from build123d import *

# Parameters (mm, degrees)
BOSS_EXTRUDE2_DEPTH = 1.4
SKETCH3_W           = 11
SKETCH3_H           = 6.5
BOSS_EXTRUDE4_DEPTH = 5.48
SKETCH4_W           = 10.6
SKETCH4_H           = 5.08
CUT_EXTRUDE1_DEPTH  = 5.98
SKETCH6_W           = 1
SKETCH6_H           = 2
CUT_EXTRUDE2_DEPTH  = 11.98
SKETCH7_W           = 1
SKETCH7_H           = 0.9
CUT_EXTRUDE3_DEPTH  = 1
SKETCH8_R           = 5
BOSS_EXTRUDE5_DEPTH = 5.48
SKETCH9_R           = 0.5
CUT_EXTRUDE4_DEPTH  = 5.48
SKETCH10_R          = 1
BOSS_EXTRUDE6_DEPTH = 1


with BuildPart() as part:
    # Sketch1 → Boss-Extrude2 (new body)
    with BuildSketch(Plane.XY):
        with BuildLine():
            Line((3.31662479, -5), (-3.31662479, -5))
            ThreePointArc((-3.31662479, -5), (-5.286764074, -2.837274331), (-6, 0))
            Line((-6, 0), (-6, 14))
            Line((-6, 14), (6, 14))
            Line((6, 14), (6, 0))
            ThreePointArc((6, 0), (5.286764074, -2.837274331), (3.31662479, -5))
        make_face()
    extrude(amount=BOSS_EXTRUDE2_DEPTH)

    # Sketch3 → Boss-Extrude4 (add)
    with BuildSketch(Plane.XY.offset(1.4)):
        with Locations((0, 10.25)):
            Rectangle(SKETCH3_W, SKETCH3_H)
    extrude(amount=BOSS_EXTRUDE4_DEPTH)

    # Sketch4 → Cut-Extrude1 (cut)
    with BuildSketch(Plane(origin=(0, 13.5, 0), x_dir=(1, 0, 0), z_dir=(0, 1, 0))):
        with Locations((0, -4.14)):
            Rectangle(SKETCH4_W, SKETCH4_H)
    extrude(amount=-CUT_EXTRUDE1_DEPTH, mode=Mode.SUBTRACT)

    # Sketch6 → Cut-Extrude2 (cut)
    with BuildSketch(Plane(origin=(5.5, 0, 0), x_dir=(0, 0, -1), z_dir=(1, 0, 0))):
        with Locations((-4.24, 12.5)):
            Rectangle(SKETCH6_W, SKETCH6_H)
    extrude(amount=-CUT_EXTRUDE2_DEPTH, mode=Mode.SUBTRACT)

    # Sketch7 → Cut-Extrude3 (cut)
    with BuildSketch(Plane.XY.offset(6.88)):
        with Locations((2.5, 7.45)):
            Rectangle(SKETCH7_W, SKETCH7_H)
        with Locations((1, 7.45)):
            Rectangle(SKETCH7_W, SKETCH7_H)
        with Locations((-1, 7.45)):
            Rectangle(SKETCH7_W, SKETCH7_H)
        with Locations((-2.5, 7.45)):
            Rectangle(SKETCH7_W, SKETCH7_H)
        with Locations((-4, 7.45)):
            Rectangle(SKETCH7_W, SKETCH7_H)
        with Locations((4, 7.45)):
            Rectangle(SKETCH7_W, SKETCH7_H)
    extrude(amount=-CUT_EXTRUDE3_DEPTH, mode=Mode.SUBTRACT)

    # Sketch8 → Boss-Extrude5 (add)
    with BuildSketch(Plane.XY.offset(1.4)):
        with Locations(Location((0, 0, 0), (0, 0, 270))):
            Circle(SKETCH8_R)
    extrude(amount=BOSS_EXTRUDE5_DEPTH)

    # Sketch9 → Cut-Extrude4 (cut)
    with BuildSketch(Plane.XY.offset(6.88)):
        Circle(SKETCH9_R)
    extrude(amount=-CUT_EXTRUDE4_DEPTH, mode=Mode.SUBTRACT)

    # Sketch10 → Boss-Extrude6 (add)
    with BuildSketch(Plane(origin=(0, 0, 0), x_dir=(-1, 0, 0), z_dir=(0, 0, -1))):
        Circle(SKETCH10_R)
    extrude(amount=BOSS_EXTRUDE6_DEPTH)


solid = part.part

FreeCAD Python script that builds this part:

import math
import FreeCAD as App
import Part
import Sketcher

V = App.Vector
Q = App.Units.Quantity

doc = App.newDocument("Part")
body = doc.addObject("PartDesign::Body", "Body")

sketch1 = doc.addObject("Sketcher::SketchObject", "Sketch")
body.addObject(sketch1)
sketch1.AttachmentSupport = (doc.XY_Plane, [""])
sketch1.MapMode = "FlatFace"
sketch1.addGeometry(Part.LineSegment(V(-3.316625, -5, 0), V(3.316625, -5, 0)), False)
sketch1.addGeometry(Part.ArcOfCircle(Part.Circle(V(0, 0, 0), V(0, 0, 1), 6), math.radians(-56.44269), math.radians(0)), False)
sketch1.addGeometry(Part.LineSegment(V(6, 0, 0), V(6, 14, 0)), False)
sketch1.addGeometry(Part.LineSegment(V(6, 14, 0), V(-6, 14, 0)), False)
sketch1.addGeometry(Part.LineSegment(V(-6, 14, 0), V(-6, 0, 0)), False)
sketch1.addGeometry(Part.ArcOfCircle(Part.Circle(V(0, 0, 0), V(0, 0, 1), 6), math.radians(180), math.radians(236.44269)), False)
sketch1.addConstraint(Sketcher.Constraint("Coincident", 0, 2, 1, 1))
sketch1.addConstraint(Sketcher.Constraint("Tangent", 1, 2, 2, 1))
sketch1.addConstraint(Sketcher.Constraint("Coincident", 2, 2, 3, 1))
sketch1.addConstraint(Sketcher.Constraint("Coincident", 3, 2, 4, 1))
sketch1.addConstraint(Sketcher.Constraint("Tangent", 4, 2, 5, 1))
sketch1.addConstraint(Sketcher.Constraint("Coincident", 5, 2, 0, 1))
sketch1.addConstraint(Sketcher.Constraint("Horizontal", 0))
sketch1.addConstraint(Sketcher.Constraint("Vertical", 2))
sketch1.addConstraint(Sketcher.Constraint("Horizontal", 3))
sketch1.addConstraint(Sketcher.Constraint("Vertical", 4))
sketch1.addConstraint(Sketcher.Constraint("Coincident", 1, 3, -1, 1))
sketch1.addConstraint(Sketcher.Constraint("Coincident", 5, 3, -1, 1))
sketch1.addConstraint(Sketcher.Constraint("Equal", 1, 5))
sketch1.addConstraint(Sketcher.Constraint("Radius", 1, Q("6 mm")))
sketch1.addConstraint(Sketcher.Constraint("DistanceY", 2, 1, 2, 2, Q("14 mm")))
sketch1.addConstraint(Sketcher.Constraint("DistanceY", 0, 2, -1, 1, Q("5 mm")))
pad1 = doc.addObject("PartDesign::Pad", "Pad")
body.addObject(pad1)
pad1.Profile = sketch1
pad1.Length = 1.4

sketch2 = doc.addObject("Sketcher::SketchObject", "Sketch001")
body.addObject(sketch2)
sketch2.AttachmentSupport = (doc.XY_Plane, [""])
sketch2.MapMode = "FlatFace"
sketch2.AttachmentOffset = App.Placement(V(0, 0, 1.4), App.Rotation())
sketch2.addGeometry(Part.LineSegment(V(-5.5, 13.5, 0), V(-5.5, 7, 0)), False)
sketch2.addGeometry(Part.LineSegment(V(-5.5, 7, 0), V(5.5, 7, 0)), False)
sketch2.addGeometry(Part.LineSegment(V(5.5, 7, 0), V(5.5, 13.5, 0)), False)
sketch2.addGeometry(Part.LineSegment(V(5.5, 13.5, 0), V(-5.5, 13.5, 0)), False)
sketch2.addConstraint(Sketcher.Constraint("Coincident", 0, 2, 1, 1))
sketch2.addConstraint(Sketcher.Constraint("Coincident", 1, 2, 2, 1))
sketch2.addConstraint(Sketcher.Constraint("Coincident", 2, 2, 3, 1))
sketch2.addConstraint(Sketcher.Constraint("Coincident", 3, 2, 0, 1))
sketch2.addConstraint(Sketcher.Constraint("Vertical", 0))
sketch2.addConstraint(Sketcher.Constraint("Horizontal", 1))
sketch2.addConstraint(Sketcher.Constraint("Vertical", 2))
sketch2.addConstraint(Sketcher.Constraint("Horizontal", 3))
sketch2.addConstraint(Sketcher.Constraint("DistanceX", 1, 1, 1, 2, Q("11 mm")))
sketch2.addConstraint(Sketcher.Constraint("DistanceY", 0, 2, 0, 1, Q("6.5 mm")))
sketch2.addConstraint(Sketcher.Constraint("DistanceY", -1, 1, 0, 2, Q("7 mm")))
sketch2.addConstraint(Sketcher.Constraint("DistanceX", 0, 2, -1, 1, Q("5.5 mm")))
pad2 = doc.addObject("PartDesign::Pad", "Pad001")
body.addObject(pad2)
pad2.Profile = sketch2
pad2.Length = 5.48

sketch3 = doc.addObject("Sketcher::SketchObject", "Sketch002")
body.addObject(sketch3)
sketch3.AttachmentSupport = (doc.XZ_Plane, [""])
sketch3.MapMode = "FlatFace"
sketch3.AttachmentOffset = App.Placement(V(0, 0, -13.5), App.Rotation())
sketch3.addGeometry(Part.LineSegment(V(-5.3, 1.6, 0), V(-5.3, 6.68, 0)), False)
sketch3.addGeometry(Part.LineSegment(V(-5.3, 6.68, 0), V(5.3, 6.68, 0)), False)
sketch3.addGeometry(Part.LineSegment(V(5.3, 6.68, 0), V(5.3, 1.6, 0)), False)
sketch3.addGeometry(Part.LineSegment(V(5.3, 1.6, 0), V(-5.3, 1.6, 0)), False)
sketch3.addConstraint(Sketcher.Constraint("Coincident", 0, 2, 1, 1))
sketch3.addConstraint(Sketcher.Constraint("Coincident", 1, 2, 2, 1))
sketch3.addConstraint(Sketcher.Constraint("Coincident", 2, 2, 3, 1))
sketch3.addConstraint(Sketcher.Constraint("Coincident", 3, 2, 0, 1))
sketch3.addConstraint(Sketcher.Constraint("Vertical", 0))
sketch3.addConstraint(Sketcher.Constraint("Horizontal", 1))
sketch3.addConstraint(Sketcher.Constraint("Vertical", 2))
sketch3.addConstraint(Sketcher.Constraint("Horizontal", 3))
sketch3.addConstraint(Sketcher.Constraint("DistanceX", 1, 1, 1, 2, Q("10.6 mm")))
sketch3.addConstraint(Sketcher.Constraint("DistanceY", 0, 1, 0, 2, Q("5.08 mm")))
sketch3.addConstraint(Sketcher.Constraint("DistanceX", 0, 2, -1, 1, Q("5.3 mm")))
sketch3.addConstraint(Sketcher.Constraint("DistanceY", -1, 1, 2, 2, Q("1.6 mm")))
pocket1 = doc.addObject("PartDesign::Pocket", "Pocket")
body.addObject(pocket1)
pocket1.Profile = sketch3
pocket1.Length = 5.98
pocket1.Reversed = True

sketch4 = doc.addObject("Sketcher::SketchObject", "Sketch003")
body.addObject(sketch4)
sketch4.AttachmentSupport = (doc.YZ_Plane, [""])
sketch4.MapMode = "FlatFace"
sketch4.AttachmentOffset = App.Placement(V(0, 0, 5.5), App.Rotation())
sketch4.addGeometry(Part.LineSegment(V(13.5, 4.74, 0), V(11.5, 4.74, 0)), False)
sketch4.addGeometry(Part.LineSegment(V(11.5, 4.74, 0), V(11.5, 3.74, 0)), False)
sketch4.addGeometry(Part.LineSegment(V(11.5, 3.74, 0), V(13.5, 3.74, 0)), False)
sketch4.addGeometry(Part.LineSegment(V(13.5, 3.74, 0), V(13.5, 4.74, 0)), False)
sketch4.addConstraint(Sketcher.Constraint("Coincident", 0, 2, 1, 1))
sketch4.addConstraint(Sketcher.Constraint("Coincident", 1, 2, 2, 1))
sketch4.addConstraint(Sketcher.Constraint("Coincident", 2, 2, 3, 1))
sketch4.addConstraint(Sketcher.Constraint("Coincident", 3, 2, 0, 1))
sketch4.addConstraint(Sketcher.Constraint("Horizontal", 0))
sketch4.addConstraint(Sketcher.Constraint("Vertical", 1))
sketch4.addConstraint(Sketcher.Constraint("Horizontal", 2))
sketch4.addConstraint(Sketcher.Constraint("Vertical", 3))
sketch4.addConstraint(Sketcher.Constraint("DistanceX", 0, 2, 0, 1, Q("2 mm")))
sketch4.addConstraint(Sketcher.Constraint("DistanceY", 1, 2, 1, 1, Q("1 mm")))
sketch4.addConstraint(Sketcher.Constraint("DistanceX", -1, 1, 0, 2, Q("11.5 mm")))
sketch4.addConstraint(Sketcher.Constraint("DistanceY", -1, 1, 0, 2, Q("4.74 mm")))
pocket2 = doc.addObject("PartDesign::Pocket", "Pocket001")
body.addObject(pocket2)
pocket2.Profile = sketch4
pocket2.Length = 11.98

sketch5 = doc.addObject("Sketcher::SketchObject", "Sketch004")
body.addObject(sketch5)
sketch5.AttachmentSupport = (doc.XY_Plane, [""])
sketch5.MapMode = "FlatFace"
sketch5.AttachmentOffset = App.Placement(V(0, 0, 6.88), App.Rotation())
sketch5.addGeometry(Part.LineSegment(V(2, 7.9, 0), V(2, 7, 0)), False)
sketch5.addGeometry(Part.LineSegment(V(2, 7, 0), V(3, 7, 0)), False)
sketch5.addGeometry(Part.LineSegment(V(3, 7, 0), V(3, 7.9, 0)), False)
sketch5.addGeometry(Part.LineSegment(V(3, 7.9, 0), V(2, 7.9, 0)), False)
sketch5.addGeometry(Part.LineSegment(V(0.5, 7.9, 0), V(0.5, 7, 0)), False)
sketch5.addGeometry(Part.LineSegment(V(0.5, 7, 0), V(1.5, 7, 0)), False)
sketch5.addGeometry(Part.LineSegment(V(1.5, 7, 0), V(1.5, 7.9, 0)), False)
sketch5.addGeometry(Part.LineSegment(V(1.5, 7.9, 0), V(0.5, 7.9, 0)), False)
sketch5.addGeometry(Part.LineSegment(V(-1.5, 7.9, 0), V(-1.5, 7, 0)), False)
sketch5.addGeometry(Part.LineSegment(V(-1.5, 7, 0), V(-0.5, 7, 0)), False)
sketch5.addGeometry(Part.LineSegment(V(-0.5, 7, 0), V(-0.5, 7.9, 0)), False)
sketch5.addGeometry(Part.LineSegment(V(-0.5, 7.9, 0), V(-1.5, 7.9, 0)), False)
sketch5.addGeometry(Part.LineSegment(V(-3, 7.9, 0), V(-3, 7, 0)), False)
sketch5.addGeometry(Part.LineSegment(V(-3, 7, 0), V(-2, 7, 0)), False)
sketch5.addGeometry(Part.LineSegment(V(-2, 7, 0), V(-2, 7.9, 0)), False)
sketch5.addGeometry(Part.LineSegment(V(-2, 7.9, 0), V(-3, 7.9, 0)), False)
sketch5.addGeometry(Part.LineSegment(V(-4.5, 7.9, 0), V(-4.5, 7, 0)), False)
sketch5.addGeometry(Part.LineSegment(V(-4.5, 7, 0), V(-3.5, 7, 0)), False)
sketch5.addGeometry(Part.LineSegment(V(-3.5, 7, 0), V(-3.5, 7.9, 0)), False)
sketch5.addGeometry(Part.LineSegment(V(-3.5, 7.9, 0), V(-4.5, 7.9, 0)), False)
sketch5.addGeometry(Part.LineSegment(V(3.5, 7.9, 0), V(3.5, 7, 0)), False)
sketch5.addGeometry(Part.LineSegment(V(3.5, 7, 0), V(4.5, 7, 0)), False)
sketch5.addGeometry(Part.LineSegment(V(4.5, 7, 0), V(4.5, 7.9, 0)), False)
sketch5.addGeometry(Part.LineSegment(V(4.5, 7.9, 0), V(3.5, 7.9, 0)), False)
sketch5.addConstraint(Sketcher.Constraint("Coincident", 0, 2, 1, 1))
sketch5.addConstraint(Sketcher.Constraint("Coincident", 1, 2, 2, 1))
sketch5.addConstraint(Sketcher.Constraint("Coincident", 2, 2, 3, 1))
sketch5.addConstraint(Sketcher.Constraint("Coincident", 3, 2, 0, 1))
sketch5.addConstraint(Sketcher.Constraint("Coincident", 4, 2, 5, 1))
sketch5.addConstraint(Sketcher.Constraint("Coincident", 5, 2, 6, 1))
sketch5.addConstraint(Sketcher.Constraint("Coincident", 6, 2, 7, 1))
sketch5.addConstraint(Sketcher.Constraint("Coincident", 7, 2, 4, 1))
sketch5.addConstraint(Sketcher.Constraint("Coincident", 8, 2, 9, 1))
sketch5.addConstraint(Sketcher.Constraint("Coincident", 9, 2, 10, 1))
sketch5.addConstraint(Sketcher.Constraint("Coincident", 10, 2, 11, 1))
sketch5.addConstraint(Sketcher.Constraint("Coincident", 11, 2, 8, 1))
sketch5.addConstraint(Sketcher.Constraint("Coincident", 12, 2, 13, 1))
sketch5.addConstraint(Sketcher.Constraint("Coincident", 13, 2, 14, 1))
sketch5.addConstraint(Sketcher.Constraint("Coincident", 14, 2, 15, 1))
sketch5.addConstraint(Sketcher.Constraint("Coincident", 15, 2, 12, 1))
sketch5.addConstraint(Sketcher.Constraint("Coincident", 16, 2, 17, 1))
sketch5.addConstraint(Sketcher.Constraint("Coincident", 17, 2, 18, 1))
sketch5.addConstraint(Sketcher.Constraint("Coincident", 18, 2, 19, 1))
sketch5.addConstraint(Sketcher.Constraint("Coincident", 19, 2, 16, 1))
sketch5.addConstraint(Sketcher.Constraint("Coincident", 20, 2, 21, 1))
sketch5.addConstraint(Sketcher.Constraint("Coincident", 21, 2, 22, 1))
sketch5.addConstraint(Sketcher.Constraint("Coincident", 22, 2, 23, 1))
sketch5.addConstraint(Sketcher.Constraint("Coincident", 23, 2, 20, 1))
sketch5.addConstraint(Sketcher.Constraint("Vertical", 0))
sketch5.addConstraint(Sketcher.Constraint("Horizontal", 1))
sketch5.addConstraint(Sketcher.Constraint("Vertical", 2))
sketch5.addConstraint(Sketcher.Constraint("Horizontal", 3))
sketch5.addConstraint(Sketcher.Constraint("Vertical", 4))
sketch5.addConstraint(Sketcher.Constraint("Horizontal", 5))
sketch5.addConstraint(Sketcher.Constraint("Vertical", 6))
sketch5.addConstraint(Sketcher.Constraint("Horizontal", 7))
sketch5.addConstraint(Sketcher.Constraint("Vertical", 8))
sketch5.addConstraint(Sketcher.Constraint("Horizontal", 9))
sketch5.addConstraint(Sketcher.Constraint("Vertical", 10))
sketch5.addConstraint(Sketcher.Constraint("Horizontal", 11))
sketch5.addConstraint(Sketcher.Constraint("Vertical", 12))
sketch5.addConstraint(Sketcher.Constraint("Horizontal", 13))
sketch5.addConstraint(Sketcher.Constraint("Vertical", 14))
sketch5.addConstraint(Sketcher.Constraint("Horizontal", 15))
sketch5.addConstraint(Sketcher.Constraint("Vertical", 16))
sketch5.addConstraint(Sketcher.Constraint("Horizontal", 17))
sketch5.addConstraint(Sketcher.Constraint("Vertical", 18))
sketch5.addConstraint(Sketcher.Constraint("Horizontal", 19))
sketch5.addConstraint(Sketcher.Constraint("Vertical", 20))
sketch5.addConstraint(Sketcher.Constraint("Horizontal", 21))
sketch5.addConstraint(Sketcher.Constraint("Vertical", 22))
sketch5.addConstraint(Sketcher.Constraint("Horizontal", 23))
sketch5.addConstraint(Sketcher.Constraint("Symmetric", 5, 2, 8, 2, -2))
sketch5.addConstraint(Sketcher.Constraint("Symmetric", 7, 2, 10, 2, -2))
sketch5.addConstraint(Sketcher.Constraint("Symmetric", 1, 2, 12, 2, -2))
sketch5.addConstraint(Sketcher.Constraint("Symmetric", 3, 2, 14, 2, -2))
sketch5.addConstraint(Sketcher.Constraint("Symmetric", 17, 2, 20, 2, -2))
sketch5.addConstraint(Sketcher.Constraint("Symmetric", 19, 2, 22, 2, -2))
sketch5.addConstraint(Sketcher.Constraint("Horizontal", 1, 2, 4, 2))
sketch5.addConstraint(Sketcher.Constraint("Horizontal", 3, 2, 6, 2))
sketch5.addConstraint(Sketcher.Constraint("Horizontal", 13, 2, 16, 2))
sketch5.addConstraint(Sketcher.Constraint("Horizontal", 15, 2, 18, 2))
sketch5.addConstraint(Sketcher.Constraint("Equal", 3, 5))
sketch5.addConstraint(Sketcher.Constraint("Equal", 15, 17))
sketch5.addConstraint(Sketcher.Constraint("DistanceX", 1, 1, 1, 2, Q("1 mm")))
sketch5.addConstraint(Sketcher.Constraint("DistanceY", 0, 2, 0, 1, Q("0.9 mm")))
sketch5.addConstraint(Sketcher.Constraint("DistanceX", -1, 1, 0, 2, Q("2 mm")))
sketch5.addConstraint(Sketcher.Constraint("DistanceY", -1, 1, 0, 2, Q("7 mm")))
sketch5.addConstraint(Sketcher.Constraint("DistanceX", 8, 2, 4, 2, Q("2 mm")))
sketch5.addConstraint(Sketcher.Constraint("DistanceX", 16, 2, 8, 2, Q("3 mm")))
pocket3 = doc.addObject("PartDesign::Pocket", "Pocket002")
body.addObject(pocket3)
pocket3.Profile = sketch5
pocket3.Length = 1

sketch6 = doc.addObject("Sketcher::SketchObject", "Sketch005")
body.addObject(sketch6)
sketch6.AttachmentSupport = (doc.XY_Plane, [""])
sketch6.MapMode = "FlatFace"
sketch6.AttachmentOffset = App.Placement(V(0, 0, 1.4), App.Rotation())
sketch6.addGeometry(Part.Circle(V(0, 0, 0), V(0, 0, 1), 5), False)
sketch6.addConstraint(Sketcher.Constraint("Coincident", 0, 3, -1, 1))
sketch6.addConstraint(Sketcher.Constraint("Diameter", 0, Q("10 mm")))
pad3 = doc.addObject("PartDesign::Pad", "Pad002")
body.addObject(pad3)
pad3.Profile = sketch6
pad3.Length = 5.48

sketch7 = doc.addObject("Sketcher::SketchObject", "Sketch006")
body.addObject(sketch7)
sketch7.AttachmentSupport = (doc.XY_Plane, [""])
sketch7.MapMode = "FlatFace"
sketch7.AttachmentOffset = App.Placement(V(0, 0, 6.88), App.Rotation())
sketch7.addGeometry(Part.Circle(V(0, 0, 0), V(0, 0, 1), 0.5), False)
sketch7.addConstraint(Sketcher.Constraint("Coincident", 0, 3, -1, 1))
sketch7.addConstraint(Sketcher.Constraint("Diameter", 0, Q("1 mm")))
pocket4 = doc.addObject("PartDesign::Pocket", "Pocket003")
body.addObject(pocket4)
pocket4.Profile = sketch7
pocket4.Length = 5.48

sketch8 = doc.addObject("Sketcher::SketchObject", "Sketch007")
body.addObject(sketch8)
sketch8.AttachmentSupport = (doc.XY_Plane, [""])
sketch8.MapMode = "FlatFace"
sketch8.addGeometry(Part.Circle(V(0, 0, 0), V(0, 0, 1), 1), False)
sketch8.addConstraint(Sketcher.Constraint("Coincident", 0, 3, -1, 1))
sketch8.addConstraint(Sketcher.Constraint("Diameter", 0, Q("2 mm")))
pad4 = doc.addObject("PartDesign::Pad", "Pad003")
body.addObject(pad4)
pad4.Profile = sketch8
pad4.Length = 1
pad4.Reversed = True

doc.recompute()
